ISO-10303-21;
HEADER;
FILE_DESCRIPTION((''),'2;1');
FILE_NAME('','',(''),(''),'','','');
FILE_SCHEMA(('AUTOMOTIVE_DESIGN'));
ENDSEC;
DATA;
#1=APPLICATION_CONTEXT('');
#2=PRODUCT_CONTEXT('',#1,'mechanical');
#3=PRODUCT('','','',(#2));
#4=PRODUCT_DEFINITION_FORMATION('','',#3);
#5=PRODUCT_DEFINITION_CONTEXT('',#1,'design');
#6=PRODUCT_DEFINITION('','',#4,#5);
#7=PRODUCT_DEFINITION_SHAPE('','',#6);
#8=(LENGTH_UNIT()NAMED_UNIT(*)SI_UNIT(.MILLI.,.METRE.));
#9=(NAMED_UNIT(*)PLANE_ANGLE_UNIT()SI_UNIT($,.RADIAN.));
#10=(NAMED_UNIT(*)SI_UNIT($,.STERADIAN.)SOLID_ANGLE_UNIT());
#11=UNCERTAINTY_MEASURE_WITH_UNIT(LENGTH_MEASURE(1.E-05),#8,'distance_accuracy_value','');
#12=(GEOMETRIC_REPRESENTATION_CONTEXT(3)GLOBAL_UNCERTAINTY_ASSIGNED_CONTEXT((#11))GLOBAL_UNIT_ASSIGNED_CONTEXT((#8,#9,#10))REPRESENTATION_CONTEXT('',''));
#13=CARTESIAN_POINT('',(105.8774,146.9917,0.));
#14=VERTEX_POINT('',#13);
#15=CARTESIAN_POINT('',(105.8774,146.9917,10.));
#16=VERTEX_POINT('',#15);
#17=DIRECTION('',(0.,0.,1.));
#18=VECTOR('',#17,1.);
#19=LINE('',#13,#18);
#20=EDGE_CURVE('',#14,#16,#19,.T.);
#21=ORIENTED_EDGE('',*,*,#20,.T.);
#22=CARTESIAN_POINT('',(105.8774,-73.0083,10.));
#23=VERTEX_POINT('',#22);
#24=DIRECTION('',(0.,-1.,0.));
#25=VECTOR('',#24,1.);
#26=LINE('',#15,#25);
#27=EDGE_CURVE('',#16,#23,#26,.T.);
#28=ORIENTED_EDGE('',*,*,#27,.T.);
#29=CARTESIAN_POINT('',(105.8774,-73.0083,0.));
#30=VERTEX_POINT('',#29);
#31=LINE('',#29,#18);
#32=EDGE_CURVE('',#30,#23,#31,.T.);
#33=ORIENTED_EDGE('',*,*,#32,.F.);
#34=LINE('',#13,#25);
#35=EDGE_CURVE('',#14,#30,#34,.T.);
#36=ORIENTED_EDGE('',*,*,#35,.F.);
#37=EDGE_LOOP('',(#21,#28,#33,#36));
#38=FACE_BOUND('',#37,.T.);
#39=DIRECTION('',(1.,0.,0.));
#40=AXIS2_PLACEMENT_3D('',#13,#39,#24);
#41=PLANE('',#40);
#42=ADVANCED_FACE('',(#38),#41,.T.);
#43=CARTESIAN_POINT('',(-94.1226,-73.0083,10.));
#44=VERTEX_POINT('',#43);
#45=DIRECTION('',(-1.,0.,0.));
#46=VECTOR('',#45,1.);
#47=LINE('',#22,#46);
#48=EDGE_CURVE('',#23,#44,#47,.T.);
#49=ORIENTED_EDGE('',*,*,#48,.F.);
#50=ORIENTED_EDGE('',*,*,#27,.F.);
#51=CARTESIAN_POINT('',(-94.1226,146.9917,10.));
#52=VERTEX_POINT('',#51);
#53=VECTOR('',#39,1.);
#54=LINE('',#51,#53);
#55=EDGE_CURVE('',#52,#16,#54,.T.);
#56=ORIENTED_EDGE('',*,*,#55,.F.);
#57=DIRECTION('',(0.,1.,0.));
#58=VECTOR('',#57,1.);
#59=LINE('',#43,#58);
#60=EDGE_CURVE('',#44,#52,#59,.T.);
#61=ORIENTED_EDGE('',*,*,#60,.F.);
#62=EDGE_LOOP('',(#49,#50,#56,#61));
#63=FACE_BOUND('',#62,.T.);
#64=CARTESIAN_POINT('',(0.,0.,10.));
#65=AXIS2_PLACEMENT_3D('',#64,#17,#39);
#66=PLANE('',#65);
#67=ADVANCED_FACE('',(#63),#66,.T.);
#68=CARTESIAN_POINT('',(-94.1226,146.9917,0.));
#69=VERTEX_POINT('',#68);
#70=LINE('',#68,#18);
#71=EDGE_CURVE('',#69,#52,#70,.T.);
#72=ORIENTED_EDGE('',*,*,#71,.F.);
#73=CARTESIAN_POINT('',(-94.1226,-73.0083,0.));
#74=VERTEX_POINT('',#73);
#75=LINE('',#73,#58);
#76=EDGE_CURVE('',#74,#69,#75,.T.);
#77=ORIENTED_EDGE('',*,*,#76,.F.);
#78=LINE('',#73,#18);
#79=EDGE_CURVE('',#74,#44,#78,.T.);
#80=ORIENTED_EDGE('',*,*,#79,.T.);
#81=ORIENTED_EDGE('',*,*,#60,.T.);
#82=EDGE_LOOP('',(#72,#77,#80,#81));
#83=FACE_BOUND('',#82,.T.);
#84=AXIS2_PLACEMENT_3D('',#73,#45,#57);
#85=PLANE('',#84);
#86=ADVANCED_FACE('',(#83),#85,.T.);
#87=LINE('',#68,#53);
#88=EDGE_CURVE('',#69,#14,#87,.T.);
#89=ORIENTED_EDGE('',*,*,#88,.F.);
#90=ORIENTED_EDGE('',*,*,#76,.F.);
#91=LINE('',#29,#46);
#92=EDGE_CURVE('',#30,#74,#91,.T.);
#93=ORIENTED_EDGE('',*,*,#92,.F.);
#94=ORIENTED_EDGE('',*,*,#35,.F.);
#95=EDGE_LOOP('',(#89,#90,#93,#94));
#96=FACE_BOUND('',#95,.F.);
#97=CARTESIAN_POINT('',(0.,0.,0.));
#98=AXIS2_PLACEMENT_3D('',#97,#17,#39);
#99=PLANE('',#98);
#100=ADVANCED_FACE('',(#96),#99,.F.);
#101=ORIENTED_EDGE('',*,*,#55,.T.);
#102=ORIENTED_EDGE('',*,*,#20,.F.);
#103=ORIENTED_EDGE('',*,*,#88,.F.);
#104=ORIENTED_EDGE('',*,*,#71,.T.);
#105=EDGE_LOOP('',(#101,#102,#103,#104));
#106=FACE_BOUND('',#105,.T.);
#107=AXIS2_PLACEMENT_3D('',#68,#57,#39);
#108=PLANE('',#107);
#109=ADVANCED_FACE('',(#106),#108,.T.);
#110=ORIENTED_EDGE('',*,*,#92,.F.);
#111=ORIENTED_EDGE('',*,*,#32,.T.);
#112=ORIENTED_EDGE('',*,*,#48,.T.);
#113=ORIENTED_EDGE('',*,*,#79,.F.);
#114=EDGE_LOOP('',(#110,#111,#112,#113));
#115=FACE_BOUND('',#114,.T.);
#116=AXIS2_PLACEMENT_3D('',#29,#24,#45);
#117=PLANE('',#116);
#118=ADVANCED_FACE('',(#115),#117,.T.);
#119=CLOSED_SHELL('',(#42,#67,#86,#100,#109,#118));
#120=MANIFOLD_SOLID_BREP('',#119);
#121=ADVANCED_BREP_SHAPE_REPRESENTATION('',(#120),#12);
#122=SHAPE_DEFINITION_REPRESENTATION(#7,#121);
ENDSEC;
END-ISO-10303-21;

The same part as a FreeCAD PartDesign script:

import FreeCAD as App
import Part
import Sketcher
Q = App.Units.Quantity


def add_polygon(sketch, points):
    """Adds a closed chain of lines whose ends are joined by coincident constraints."""
    first, n = sketch.GeometryCount, len(points)
    for a, b in zip(points, points[1:] + points[:1]):
        sketch.addGeometry(Part.LineSegment(App.Vector(*a, 0), App.Vector(*b, 0)), False)
    for i in range(n):
        sketch.addConstraint(Sketcher.Constraint("Coincident", first + i, 2, first + (i + 1) % n, 1))

doc = App.newDocument("Part")
params = doc.addObject("Spreadsheet::Sheet", "Params")
for row, (alias, value) in enumerate([
    ("sketch1_width", "200 mm"),
    ("sketch1_height", "220 mm"),
    ("pad1_length", "10 mm"),
], start=1):
    params.set(f"A{row}", alias)
    params.set(f"B{row}", "=" + value)
    params.setAlias(f"B{row}", alias)

body = doc.addObject("PartDesign::Body", "Body")

# Sketch on XY plane
sketch1 = doc.addObject("Sketcher::SketchObject", "Sketch")
body.addObject(sketch1)
sketch1.AttachmentSupport = (doc.XY_Plane, [""])
sketch1.MapMode = "FlatFace"
add_polygon(sketch1, [(106, 147), (-94, 147), (-94, -73), (106, -73)])  # lines 0-3
sketch1.addConstraint(Sketcher.Constraint("Horizontal", 0))
sketch1.addConstraint(Sketcher.Constraint("Vertical", 1))
sketch1.addConstraint(Sketcher.Constraint("Horizontal", 2))
sketch1.addConstraint(Sketcher.Constraint("Vertical", 3))
sketch1.addConstraint(Sketcher.Constraint("DistanceX", 0, 2, 0, 1, Q("200 mm")))
sketch1.addConstraint(Sketcher.Constraint("DistanceY", 1, 2, 1, 1, Q("220 mm")))
sketch1.addConstraint(Sketcher.Constraint("DistanceX", 0, 2, -1, 1, Q("94.1226 mm")))
sketch1.addConstraint(Sketcher.Constraint("DistanceY", -1, 1, 0, 2, Q("146.9917 mm")))
sketch1.setExpression("Constraints[8]", "Params.sketch1_width")
sketch1.setExpression("Constraints[9]", "Params.sketch1_height")
pad1 = doc.addObject("PartDesign::Pad", "Pad")
body.addObject(pad1)
pad1.Profile = sketch1
pad1.setExpression("Length", "Params.pad1_length")

doc.recompute()
